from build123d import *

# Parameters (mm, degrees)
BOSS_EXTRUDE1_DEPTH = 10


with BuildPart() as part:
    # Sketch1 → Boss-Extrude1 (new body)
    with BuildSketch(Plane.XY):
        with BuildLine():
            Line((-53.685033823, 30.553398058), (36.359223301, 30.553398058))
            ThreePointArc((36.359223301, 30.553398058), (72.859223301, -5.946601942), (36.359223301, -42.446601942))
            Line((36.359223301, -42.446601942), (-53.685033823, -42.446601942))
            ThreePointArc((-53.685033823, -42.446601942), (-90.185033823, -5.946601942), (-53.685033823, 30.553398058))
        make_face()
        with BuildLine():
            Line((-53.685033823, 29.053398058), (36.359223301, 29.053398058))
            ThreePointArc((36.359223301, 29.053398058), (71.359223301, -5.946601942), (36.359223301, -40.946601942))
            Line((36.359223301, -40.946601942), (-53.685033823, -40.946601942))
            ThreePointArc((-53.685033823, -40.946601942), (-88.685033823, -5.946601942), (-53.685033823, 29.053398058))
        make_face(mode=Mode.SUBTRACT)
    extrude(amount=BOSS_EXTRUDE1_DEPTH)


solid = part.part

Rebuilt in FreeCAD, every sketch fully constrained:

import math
import FreeCAD as App
import Part
import Sketcher

V = App.Vector
Q = App.Units.Quantity

doc = App.newDocument("Part")
body = doc.addObject("PartDesign::Body", "Body")

# Sketch on XY plane
sketch1 = body.newObject("Sketcher::SketchObject", "Sketch")
sketch1.AttachmentSupport = (doc.getObject("XY_Plane"), [""])
sketch1.MapMode = "FlatFace"
sketch1.addGeometry([
    Part.LineSegment(V(36.359223, 30.553398, 0), V(-53.685034, 30.553398, 0)),  # 0
    Part.ArcOfCircle(Part.Circle(V(-53.685034, -5.946602, 0), V(0, 0, 1), 36.5), math.radians(90), math.radians(270)),  # 1
    Part.LineSegment(V(-53.685034, -42.446602, 0), V(36.359223, -42.446602, 0)),  # 2
    Part.ArcOfCircle(Part.Circle(V(36.359223, -5.946602, 0), V(0, 0, 1), 36.5), math.radians(-90), math.radians(90)),  # 3
    Part.LineSegment(V(-53.685034, 29.053398, 0), V(36.359223, 29.053398, 0)),  # 4
    Part.ArcOfCircle(Part.Circle(V(36.359223, -5.946602, 0), V(0, 0, 1), 35), math.radians(-90), math.radians(90)),  # 5
    Part.LineSegment(V(36.359223, -40.946602, 0), V(-53.685034, -40.946602, 0)),  # 6
    Part.ArcOfCircle(Part.Circle(V(-53.685034, -5.946602, 0), V(0, 0, 1), 35), math.radians(90), math.radians(270)),  # 7
], False)
sketch1.addConstraint([
    Sketcher.Constraint("Tangent", 0, 2, 1, 1),
    Sketcher.Constraint("Tangent", 1, 2, 2, 1),
    Sketcher.Constraint("Tangent", 2, 2, 3, 1),
    Sketcher.Constraint("Tangent", 3, 2, 0, 1),
    Sketcher.Constraint("Tangent", 4, 2, 5, 2),
    Sketcher.Constraint("Tangent", 5, 1, 6, 1),
    Sketcher.Constraint("Tangent", 6, 2, 7, 2),
    Sketcher.Constraint("Tangent", 7, 1, 4, 1),
    Sketcher.Constraint("Horizontal", 0),
    Sketcher.Constraint("Horizontal", 2),
    Sketcher.Constraint("Horizontal", 4),
    Sketcher.Constraint("Horizontal", 6),
    Sketcher.Constraint("Coincident", 5, 3, 3, 3),
    Sketcher.Constraint("Vertical", 7, 3, 0, 2),
    Sketcher.Constraint("Radius", 5, Q("35 mm")),
    Sketcher.Constraint("Radius", 1, Q("36.5 mm")),
    Sketcher.Constraint("DistanceY", 1, 3, -1, 1, Q("5.946602 mm")),
    Sketcher.Constraint("DistanceX", 0, 2, 0, 1, Q("90.044257 mm")),
    Sketcher.Constraint("DistanceX", 1, 3, -1, 1, Q("53.685034 mm")),
])
pad1 = body.newObject("PartDesign::Pad", "Pad")
pad1.Profile = sketch1
pad1.Length = 10

doc.recompute()
